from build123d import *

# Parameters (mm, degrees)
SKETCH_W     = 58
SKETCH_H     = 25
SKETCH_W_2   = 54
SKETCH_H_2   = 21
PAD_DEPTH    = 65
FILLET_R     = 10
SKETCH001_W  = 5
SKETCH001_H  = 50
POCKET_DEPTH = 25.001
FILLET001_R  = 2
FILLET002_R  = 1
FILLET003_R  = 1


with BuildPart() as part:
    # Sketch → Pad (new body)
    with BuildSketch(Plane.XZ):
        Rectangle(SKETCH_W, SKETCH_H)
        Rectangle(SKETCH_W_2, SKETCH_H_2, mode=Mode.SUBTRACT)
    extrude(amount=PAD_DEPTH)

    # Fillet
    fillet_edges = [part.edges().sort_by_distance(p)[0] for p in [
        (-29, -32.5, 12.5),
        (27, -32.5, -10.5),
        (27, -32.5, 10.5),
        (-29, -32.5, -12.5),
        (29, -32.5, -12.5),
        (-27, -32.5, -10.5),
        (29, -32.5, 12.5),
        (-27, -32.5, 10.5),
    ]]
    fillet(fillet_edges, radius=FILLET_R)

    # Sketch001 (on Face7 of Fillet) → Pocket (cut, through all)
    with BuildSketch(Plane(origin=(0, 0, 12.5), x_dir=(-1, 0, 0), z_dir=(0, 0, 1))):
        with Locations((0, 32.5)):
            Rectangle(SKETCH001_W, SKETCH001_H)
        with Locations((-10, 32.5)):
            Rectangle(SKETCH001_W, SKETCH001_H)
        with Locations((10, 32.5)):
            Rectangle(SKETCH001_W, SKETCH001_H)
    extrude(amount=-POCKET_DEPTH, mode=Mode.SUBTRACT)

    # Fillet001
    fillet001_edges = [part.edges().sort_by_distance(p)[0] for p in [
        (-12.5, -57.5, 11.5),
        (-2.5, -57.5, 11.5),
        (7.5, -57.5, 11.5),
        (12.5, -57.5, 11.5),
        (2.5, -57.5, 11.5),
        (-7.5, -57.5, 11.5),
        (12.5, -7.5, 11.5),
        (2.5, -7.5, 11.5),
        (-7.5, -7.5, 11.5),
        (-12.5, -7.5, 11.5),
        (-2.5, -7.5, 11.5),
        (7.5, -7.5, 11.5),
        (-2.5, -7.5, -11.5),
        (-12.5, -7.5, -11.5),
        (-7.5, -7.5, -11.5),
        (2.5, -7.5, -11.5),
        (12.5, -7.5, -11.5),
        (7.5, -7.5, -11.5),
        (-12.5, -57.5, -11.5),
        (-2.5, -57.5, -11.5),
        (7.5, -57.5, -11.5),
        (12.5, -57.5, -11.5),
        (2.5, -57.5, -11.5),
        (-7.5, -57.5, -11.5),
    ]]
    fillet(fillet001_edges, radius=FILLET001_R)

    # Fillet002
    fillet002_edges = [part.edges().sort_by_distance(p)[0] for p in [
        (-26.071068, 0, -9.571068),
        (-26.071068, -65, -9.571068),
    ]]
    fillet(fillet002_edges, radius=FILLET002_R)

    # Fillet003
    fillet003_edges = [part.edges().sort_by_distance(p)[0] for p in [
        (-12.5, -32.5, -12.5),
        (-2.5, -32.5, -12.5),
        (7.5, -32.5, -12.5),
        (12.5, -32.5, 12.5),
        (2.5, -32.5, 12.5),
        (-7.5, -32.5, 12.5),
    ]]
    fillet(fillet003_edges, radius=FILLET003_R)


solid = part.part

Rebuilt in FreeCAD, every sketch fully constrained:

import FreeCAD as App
import Part
import Sketcher
Q = App.Units.Quantity


def edges_at(feature, points):
    """Names of the edges that pass closest to the given points."""
    edges = feature.Shape.Edges
    near = lambda p: min(range(len(edges)), key=lambda i: edges[i].distToShape(Part.Vertex(*p))[0])
    return sorted({f"Edge{near(p) + 1}" for p in points})

doc = App.newDocument("Part")
body = doc.addObject("PartDesign::Body", "Body")

# Sketch on XZ plane
sketch1 = body.newObject("Sketcher::SketchObject", "Sketch")
sketch1.AttachmentSupport = (doc.getObject("XZ_Plane"), [""])
sketch1.MapMode = "FlatFace"
sketch1.addGeometry([
    Part.LineSegment(App.Vector(-29, 12, 0), App.Vector(-29, -12, 0)),  # 0
    Part.LineSegment(App.Vector(-29, -12, 0), App.Vector(29, -12, 0)),  # 1
    Part.LineSegment(App.Vector(29, -12, 0), App.Vector(29, 12, 0)),  # 2
    Part.LineSegment(App.Vector(29, 12, 0), App.Vector(-29, 12, 0)),  # 3
    Part.LineSegment(App.Vector(27, -10, 0), App.Vector(-27, -10, 0)),  # 4
    Part.LineSegment(App.Vector(-27, -10, 0), App.Vector(-27, 10, 0)),  # 5
    Part.LineSegment(App.Vector(-27, 10, 0), App.Vector(27, 10, 0)),  # 6
    Part.LineSegment(App.Vector(27, 10, 0), App.Vector(27, -10, 0)),  # 7
], False)
sketch1.addConstraint([
    Sketcher.Constraint("Coincident", 0, 2, 1, 1),
    Sketcher.Constraint("Coincident", 1, 2, 2, 1),
    Sketcher.Constraint("Coincident", 2, 2, 3, 1),
    Sketcher.Constraint("Coincident", 3, 2, 0, 1),
    Sketcher.Constraint("Coincident", 4, 2, 5, 1),
    Sketcher.Constraint("Coincident", 5, 2, 6, 1),
    Sketcher.Constraint("Coincident", 6, 2, 7, 1),
    Sketcher.Constraint("Coincident", 7, 2, 4, 1),
    Sketcher.Constraint("Vertical", 0),
    Sketcher.Constraint("Horizontal", 1),
    Sketcher.Constraint("Vertical", 2),
    Sketcher.Constraint("Horizontal", 3),
    Sketcher.Constraint("Horizontal", 4),
    Sketcher.Constraint("Vertical", 5),
    Sketcher.Constraint("Horizontal", 6),
    Sketcher.Constraint("Vertical", 7),
    Sketcher.Constraint("Symmetric", 0, 2, 2, 2, -1, 1),
    Sketcher.Constraint("Symmetric", 4, 2, 6, 2, -1, 1),
    Sketcher.Constraint("DistanceX", 1, 1, 1, 2, Q("58 mm")),
    Sketcher.Constraint("DistanceX", 4, 2, 4, 1, Q("54 mm")),
    Sketcher.Constraint("DistanceY", 0, 2, 0, 1, Q("25 mm")),
    Sketcher.Constraint("DistanceY", 5, 1, 5, 2, Q("21 mm")),
])
pad1 = body.newObject("PartDesign::Pad", "Pad")
pad1.Profile = sketch1
pad1.Length = 65
doc.recompute()

fillet = body.newObject("PartDesign::Fillet", "Fillet")
fillet.Base = (pad1, edges_at(pad1, [
    (-29, -32.5, 12.5),
    (27, -32.5, -10.5),
    (27, -32.5, 10.5),
    (-29, -32.5, -12.5),
    (29, -32.5, -12.5),
    (-27, -32.5, -10.5),
    (29, -32.5, 12.5),
    (-27, -32.5, 10.5),
]))
fillet.Radius = 10

# Sketch on XY plane
sketch2 = body.newObject("Sketcher::SketchObject", "Sketch001")
sketch2.AttachmentSupport = (doc.getObject("XY_Plane"), [""])
sketch2.MapMode = "FlatFace"
sketch2.AttachmentOffset = App.Placement(App.Vector(0, 0, 12.5), App.Rotation())
sketch2.addGeometry([
    Part.LineSegment(App.Vector(2, -58, 0), App.Vector(2, -8, 0)),  # 0
    Part.LineSegment(App.Vector(2, -8, 0), App.Vector(-2, -8, 0)),  # 1
    Part.LineSegment(App.Vector(-2, -8, 0), App.Vector(-2, -58, 0)),  # 2
    Part.LineSegment(App.Vector(-2, -58, 0), App.Vector(2, -58, 0)),  # 3
    Part.LineSegment(App.Vector(12, -58, 0), App.Vector(12, -8, 0)),  # 4
    Part.LineSegment(App.Vector(12, -8, 0), App.Vector(8, -8, 0)),  # 5
    Part.LineSegment(App.Vector(8, -8, 0), App.Vector(8, -58, 0)),  # 6
    Part.LineSegment(App.Vector(8, -58, 0), App.Vector(12, -58, 0)),  # 7
    Part.LineSegment(App.Vector(-8, -58, 0), App.Vector(-8, -8, 0)),  # 8
    Part.LineSegment(App.Vector(-8, -8, 0), App.Vector(-12, -8, 0)),  # 9
    Part.LineSegment(App.Vector(-12, -8, 0), App.Vector(-12, -58, 0)),  # 10
    Part.LineSegment(App.Vector(-12, -58, 0), App.Vector(-8, -58, 0)),  # 11
], False)
sketch2.addConstraint([
    Sketcher.Constraint("Coincident", 0, 2, 1, 1),
    Sketcher.Constraint("Coincident", 1, 2, 2, 1),
    Sketcher.Constraint("Coincident", 2, 2, 3, 1),
    Sketcher.Constraint("Coincident", 3, 2, 0, 1),
    Sketcher.Constraint("Coincident", 4, 2, 5, 1),
    Sketcher.Constraint("Coincident", 5, 2, 6, 1),
    Sketcher.Constraint("Coincident", 6, 2, 7, 1),
    Sketcher.Constraint("Coincident", 7, 2, 4, 1),
    Sketcher.Constraint("Coincident", 8, 2, 9, 1),
    Sketcher.Constraint("Coincident", 9, 2, 10, 1),
    Sketcher.Constraint("Coincident", 10, 2, 11, 1),
    Sketcher.Constraint("Coincident", 11, 2, 8, 1),
    Sketcher.Constraint("Vertical", 0),
    Sketcher.Constraint("Horizontal", 1),
    Sketcher.Constraint("Vertical", 2),
    Sketcher.Constraint("Horizontal", 3),
    Sketcher.Constraint("Vertical", 4),
    Sketcher.Constraint("Horizontal", 5),
    Sketcher.Constraint("Vertical", 6),
    Sketcher.Constraint("Horizontal", 7),
    Sketcher.Constraint("Vertical", 8),
    Sketcher.Constraint("Horizontal", 9),
    Sketcher.Constraint("Vertical", 10),
    Sketcher.Constraint("Horizontal", 11),
    Sketcher.Constraint("Symmetric", 5, 2, 8, 2, -2),
    Sketcher.Constraint("Symmetric", 7, 2, 10, 2, -2),
    Sketcher.Constraint("Horizontal", 1, 2, 4, 2),
    Sketcher.Constraint("Horizontal", 3, 2, 6, 2),
    Sketcher.Constraint("Equal", 3, 5),
    Sketcher.Constraint("DistanceX", 1, 2, 1, 1, Q("5 mm")),
    Sketcher.Constraint("DistanceY", 0, 1, 0, 2, Q("50 mm")),
    Sketcher.Constraint("DistanceX", 0, 2, 4, 2, Q("10 mm")),
    Sketcher.Constraint("DistanceX", 8, 2, 1, 2, Q("5 mm")),
    Sketcher.Constraint("DistanceY", 0, 2, -1, 1, Q("7.5 mm")),
])
pocket1 = body.newObject("PartDesign::Pocket", "Pocket")
pocket1.Profile = sketch2
pocket1.Type = "ThroughAll"
doc.recompute()

fillet2 = body.newObject("PartDesign::Fillet", "Fillet001")
fillet2.Base = (pocket1, edges_at(pocket1, [
    (-12.5, -57.5, 11.5),
    (-2.5, -57.5, 11.5),
    (7.5, -57.5, 11.5),
    (12.5, -57.5, 11.5),
    (2.5, -57.5, 11.5),
    (-7.5, -57.5, 11.5),
    (12.5, -7.5, 11.5),
    (2.5, -7.5, 11.5),
    (-7.5, -7.5, 11.5),
    (-12.5, -7.5, 11.5),
    (-2.5, -7.5, 11.5),
    (7.5, -7.5, 11.5),
    (-2.5, -7.5, -11.5),
    (-12.5, -7.5, -11.5),
    (-7.5, -7.5, -11.5),
    (2.5, -7.5, -11.5),
    (12.5, -7.5, -11.5),
    (7.5, -7.5, -11.5),
    (-12.5, -57.5, -11.5),
    (-2.5, -57.5, -11.5),
    (7.5, -57.5, -11.5),
    (12.5, -57.5, -11.5),
    (2.5, -57.5, -11.5),
    (-7.5, -57.5, -11.5),
]))
fillet2.Radius = 2
doc.recompute()

fillet3 = body.newObject("PartDesign::Fillet", "Fillet002")
fillet3.Base = (fillet2, edges_at(fillet2, [(-26.071, 0, -9.571), (-26.071, -65, -9.571)]))
fillet3.Radius = 1
doc.recompute()

fillet4 = body.newObject("PartDesign::Fillet", "Fillet003")
fillet4.Base = (fillet3, edges_at(fillet3, [
    (-12.5, -32.5, -12.5),
    (-2.5, -32.5, -12.5),
    (7.5, -32.5, -12.5),
    (12.5, -32.5, 12.5),
    (2.5, -32.5, 12.5),
    (-7.5, -32.5, 12.5),
]))
fillet4.Radius = 1

doc.recompute()
